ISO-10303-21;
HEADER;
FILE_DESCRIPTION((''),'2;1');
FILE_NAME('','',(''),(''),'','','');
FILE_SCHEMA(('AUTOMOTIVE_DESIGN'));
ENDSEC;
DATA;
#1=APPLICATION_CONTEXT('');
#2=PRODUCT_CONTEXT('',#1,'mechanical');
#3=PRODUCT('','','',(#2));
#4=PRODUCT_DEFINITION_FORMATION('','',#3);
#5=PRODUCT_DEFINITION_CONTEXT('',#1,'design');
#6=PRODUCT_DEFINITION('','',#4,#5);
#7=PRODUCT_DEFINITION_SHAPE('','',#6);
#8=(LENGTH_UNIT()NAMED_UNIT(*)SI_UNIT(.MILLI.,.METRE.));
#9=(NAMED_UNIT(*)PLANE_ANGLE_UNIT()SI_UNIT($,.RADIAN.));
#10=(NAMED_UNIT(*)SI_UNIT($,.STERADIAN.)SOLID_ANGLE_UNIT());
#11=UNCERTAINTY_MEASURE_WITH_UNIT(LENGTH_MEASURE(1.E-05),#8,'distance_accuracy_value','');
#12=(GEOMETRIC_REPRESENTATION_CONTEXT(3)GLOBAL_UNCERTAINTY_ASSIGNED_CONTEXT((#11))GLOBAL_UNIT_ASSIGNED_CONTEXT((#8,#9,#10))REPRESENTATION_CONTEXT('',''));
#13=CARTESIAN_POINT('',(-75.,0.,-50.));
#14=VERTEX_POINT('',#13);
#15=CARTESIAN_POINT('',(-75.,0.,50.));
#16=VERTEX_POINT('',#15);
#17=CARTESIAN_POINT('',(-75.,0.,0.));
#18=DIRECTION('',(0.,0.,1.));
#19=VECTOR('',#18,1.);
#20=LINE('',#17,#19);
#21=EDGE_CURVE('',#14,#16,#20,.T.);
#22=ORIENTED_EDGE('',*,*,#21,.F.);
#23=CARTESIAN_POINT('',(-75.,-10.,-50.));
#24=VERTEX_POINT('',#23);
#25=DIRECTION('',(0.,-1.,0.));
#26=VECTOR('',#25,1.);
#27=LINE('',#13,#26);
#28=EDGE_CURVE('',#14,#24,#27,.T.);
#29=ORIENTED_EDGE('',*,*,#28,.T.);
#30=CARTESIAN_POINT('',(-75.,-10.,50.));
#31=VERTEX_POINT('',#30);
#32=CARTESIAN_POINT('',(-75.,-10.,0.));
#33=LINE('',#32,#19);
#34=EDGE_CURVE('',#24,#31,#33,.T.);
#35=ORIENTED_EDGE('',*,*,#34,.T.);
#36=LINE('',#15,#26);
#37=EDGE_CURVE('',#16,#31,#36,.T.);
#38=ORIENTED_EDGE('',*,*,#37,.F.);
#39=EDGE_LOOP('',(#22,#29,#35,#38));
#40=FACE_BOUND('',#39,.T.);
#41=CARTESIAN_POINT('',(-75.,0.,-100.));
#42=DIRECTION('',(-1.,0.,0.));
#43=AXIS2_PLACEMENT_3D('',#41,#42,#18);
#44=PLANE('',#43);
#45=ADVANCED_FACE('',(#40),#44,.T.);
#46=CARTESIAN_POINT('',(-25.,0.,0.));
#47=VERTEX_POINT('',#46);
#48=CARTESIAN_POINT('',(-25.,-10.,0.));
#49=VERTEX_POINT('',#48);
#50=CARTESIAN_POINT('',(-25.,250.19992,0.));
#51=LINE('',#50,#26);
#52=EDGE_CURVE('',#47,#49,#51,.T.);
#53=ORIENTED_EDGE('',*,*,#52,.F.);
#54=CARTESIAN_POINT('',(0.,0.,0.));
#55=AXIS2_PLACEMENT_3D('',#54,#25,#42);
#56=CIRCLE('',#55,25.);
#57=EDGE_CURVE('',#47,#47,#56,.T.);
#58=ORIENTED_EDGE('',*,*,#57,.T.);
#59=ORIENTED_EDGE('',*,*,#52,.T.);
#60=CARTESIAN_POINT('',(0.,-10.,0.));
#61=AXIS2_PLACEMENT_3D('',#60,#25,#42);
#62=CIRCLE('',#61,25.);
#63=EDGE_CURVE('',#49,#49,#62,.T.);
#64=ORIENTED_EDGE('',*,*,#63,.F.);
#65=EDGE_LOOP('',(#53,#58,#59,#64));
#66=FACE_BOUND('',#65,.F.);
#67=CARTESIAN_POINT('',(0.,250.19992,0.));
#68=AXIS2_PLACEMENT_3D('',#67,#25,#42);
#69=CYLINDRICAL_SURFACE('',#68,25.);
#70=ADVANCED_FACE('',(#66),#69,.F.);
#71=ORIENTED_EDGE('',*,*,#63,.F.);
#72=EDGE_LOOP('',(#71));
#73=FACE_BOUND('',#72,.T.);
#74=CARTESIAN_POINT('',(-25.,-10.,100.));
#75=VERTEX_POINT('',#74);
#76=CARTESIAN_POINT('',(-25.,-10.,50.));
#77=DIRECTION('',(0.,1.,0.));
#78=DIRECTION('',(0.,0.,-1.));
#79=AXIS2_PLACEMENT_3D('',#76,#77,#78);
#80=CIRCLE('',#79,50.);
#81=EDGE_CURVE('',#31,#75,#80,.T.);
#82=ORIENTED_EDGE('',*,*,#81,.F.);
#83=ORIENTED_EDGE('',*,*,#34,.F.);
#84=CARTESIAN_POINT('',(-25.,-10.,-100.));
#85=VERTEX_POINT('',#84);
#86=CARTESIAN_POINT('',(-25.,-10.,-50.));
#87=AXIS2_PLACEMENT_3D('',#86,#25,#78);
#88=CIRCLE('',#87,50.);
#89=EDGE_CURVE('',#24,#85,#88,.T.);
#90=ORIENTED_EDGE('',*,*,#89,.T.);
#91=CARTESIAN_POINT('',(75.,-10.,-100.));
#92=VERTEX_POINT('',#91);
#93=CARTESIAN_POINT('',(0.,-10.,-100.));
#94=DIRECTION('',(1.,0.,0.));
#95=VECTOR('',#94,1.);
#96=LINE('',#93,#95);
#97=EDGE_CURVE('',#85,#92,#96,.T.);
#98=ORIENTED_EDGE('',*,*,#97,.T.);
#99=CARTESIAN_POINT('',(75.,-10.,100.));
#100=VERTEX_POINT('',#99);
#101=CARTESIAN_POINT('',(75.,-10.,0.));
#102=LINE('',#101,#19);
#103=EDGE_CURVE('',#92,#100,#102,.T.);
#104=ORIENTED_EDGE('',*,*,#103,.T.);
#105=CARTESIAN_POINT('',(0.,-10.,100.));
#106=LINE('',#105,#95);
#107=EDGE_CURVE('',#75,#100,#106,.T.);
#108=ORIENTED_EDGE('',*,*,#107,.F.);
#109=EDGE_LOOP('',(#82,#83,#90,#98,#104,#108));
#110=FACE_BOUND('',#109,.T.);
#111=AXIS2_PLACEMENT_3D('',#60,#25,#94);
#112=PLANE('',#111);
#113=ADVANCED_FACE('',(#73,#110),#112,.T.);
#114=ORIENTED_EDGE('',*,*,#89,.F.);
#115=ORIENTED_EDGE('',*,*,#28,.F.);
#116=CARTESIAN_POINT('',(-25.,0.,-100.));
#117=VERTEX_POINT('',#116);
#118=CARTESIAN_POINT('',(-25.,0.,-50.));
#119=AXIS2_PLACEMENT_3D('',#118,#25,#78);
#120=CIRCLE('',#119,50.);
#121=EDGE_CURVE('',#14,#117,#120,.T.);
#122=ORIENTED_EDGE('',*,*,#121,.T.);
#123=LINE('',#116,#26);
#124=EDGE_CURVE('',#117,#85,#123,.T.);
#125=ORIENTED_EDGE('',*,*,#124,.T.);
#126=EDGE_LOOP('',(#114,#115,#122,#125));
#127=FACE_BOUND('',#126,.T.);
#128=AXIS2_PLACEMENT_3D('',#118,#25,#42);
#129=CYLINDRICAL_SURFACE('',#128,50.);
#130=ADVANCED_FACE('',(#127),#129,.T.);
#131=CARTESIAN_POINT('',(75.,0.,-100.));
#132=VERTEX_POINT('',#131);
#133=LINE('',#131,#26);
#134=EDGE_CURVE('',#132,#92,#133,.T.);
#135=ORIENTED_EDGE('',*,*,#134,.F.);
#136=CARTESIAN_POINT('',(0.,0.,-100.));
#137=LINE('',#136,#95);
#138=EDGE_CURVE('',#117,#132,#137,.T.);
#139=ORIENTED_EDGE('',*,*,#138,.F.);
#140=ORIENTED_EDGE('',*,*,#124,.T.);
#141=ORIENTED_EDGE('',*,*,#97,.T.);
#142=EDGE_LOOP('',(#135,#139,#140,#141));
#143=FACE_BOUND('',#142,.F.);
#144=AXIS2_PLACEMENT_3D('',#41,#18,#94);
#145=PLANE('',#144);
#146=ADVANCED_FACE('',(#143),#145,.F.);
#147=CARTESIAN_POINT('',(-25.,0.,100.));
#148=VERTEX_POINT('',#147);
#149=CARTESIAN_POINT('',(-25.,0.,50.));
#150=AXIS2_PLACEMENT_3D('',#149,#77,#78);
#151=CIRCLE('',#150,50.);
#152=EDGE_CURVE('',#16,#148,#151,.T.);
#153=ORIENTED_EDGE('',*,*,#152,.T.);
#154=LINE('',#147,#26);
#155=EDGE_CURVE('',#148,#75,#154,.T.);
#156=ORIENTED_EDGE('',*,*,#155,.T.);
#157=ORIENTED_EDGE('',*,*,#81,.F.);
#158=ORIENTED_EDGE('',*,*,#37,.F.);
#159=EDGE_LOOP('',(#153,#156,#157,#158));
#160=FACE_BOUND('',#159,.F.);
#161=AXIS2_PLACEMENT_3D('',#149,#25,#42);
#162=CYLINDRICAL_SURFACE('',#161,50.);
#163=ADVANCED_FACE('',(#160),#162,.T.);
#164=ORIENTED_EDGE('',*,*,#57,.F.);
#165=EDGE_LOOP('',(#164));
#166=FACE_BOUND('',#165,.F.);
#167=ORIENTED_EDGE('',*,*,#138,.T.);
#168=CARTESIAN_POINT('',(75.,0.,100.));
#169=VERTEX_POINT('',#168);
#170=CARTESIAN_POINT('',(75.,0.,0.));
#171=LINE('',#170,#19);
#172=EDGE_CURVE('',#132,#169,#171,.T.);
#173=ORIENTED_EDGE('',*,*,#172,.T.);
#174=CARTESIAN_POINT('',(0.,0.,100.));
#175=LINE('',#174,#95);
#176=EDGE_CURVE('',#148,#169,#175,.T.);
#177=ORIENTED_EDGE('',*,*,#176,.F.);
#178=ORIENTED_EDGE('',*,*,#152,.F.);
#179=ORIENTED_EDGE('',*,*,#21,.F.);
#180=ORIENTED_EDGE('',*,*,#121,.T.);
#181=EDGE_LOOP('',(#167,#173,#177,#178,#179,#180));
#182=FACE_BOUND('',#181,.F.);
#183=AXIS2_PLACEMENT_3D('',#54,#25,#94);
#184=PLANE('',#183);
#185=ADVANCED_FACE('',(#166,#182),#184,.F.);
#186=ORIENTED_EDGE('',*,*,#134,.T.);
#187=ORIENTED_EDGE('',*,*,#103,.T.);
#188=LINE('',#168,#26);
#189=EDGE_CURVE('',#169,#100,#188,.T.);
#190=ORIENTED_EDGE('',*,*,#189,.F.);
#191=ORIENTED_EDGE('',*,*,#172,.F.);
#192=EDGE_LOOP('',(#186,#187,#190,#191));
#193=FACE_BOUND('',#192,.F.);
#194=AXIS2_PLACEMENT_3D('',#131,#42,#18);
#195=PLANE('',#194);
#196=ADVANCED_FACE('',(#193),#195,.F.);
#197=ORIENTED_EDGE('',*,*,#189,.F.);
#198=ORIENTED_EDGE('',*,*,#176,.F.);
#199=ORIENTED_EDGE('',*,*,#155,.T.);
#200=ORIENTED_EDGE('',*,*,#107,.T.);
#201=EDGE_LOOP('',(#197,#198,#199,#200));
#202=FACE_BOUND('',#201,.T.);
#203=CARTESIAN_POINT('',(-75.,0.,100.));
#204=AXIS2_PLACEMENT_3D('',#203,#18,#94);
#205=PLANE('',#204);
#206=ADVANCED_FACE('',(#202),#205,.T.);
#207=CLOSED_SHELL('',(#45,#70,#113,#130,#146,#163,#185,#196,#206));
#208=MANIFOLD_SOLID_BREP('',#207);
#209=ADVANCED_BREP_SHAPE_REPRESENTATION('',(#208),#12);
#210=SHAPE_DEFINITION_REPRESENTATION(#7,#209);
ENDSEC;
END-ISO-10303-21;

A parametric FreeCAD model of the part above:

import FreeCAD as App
import Part
import Sketcher


def edges_at(feature, points):
    """Names of the edges that pass closest to the given points."""
    edges = feature.Shape.Edges
    near = lambda p: min(range(len(edges)), key=lambda i: edges[i].distToShape(Part.Vertex(*p))[0])
    return sorted({f"Edge{near(p) + 1}" for p in points})

doc = App.newDocument("Part")
body = doc.addObject("PartDesign::Body", "Body")

# Sketch on XZ plane
sketch1 = body.newObject("Sketcher::SketchObject", "Sketch")
sketch1.AttachmentSupport = (doc.getObject("XZ_Plane"), [""])
sketch1.MapMode = "FlatFace"
sketch1.addGeometry([
    Part.LineSegment(App.Vector(-75, 100, 0), App.Vector(-75, -100, 0)),
    Part.LineSegment(App.Vector(-75, -100, 0), App.Vector(75, -100, 0)),
    Part.LineSegment(App.Vector(75, -100, 0), App.Vector(75, 100, 0)),
    Part.LineSegment(App.Vector(75, 100, 0), App.Vector(-75, 100, 0)),
], False)
sketch1.addConstraint([
    Sketcher.Constraint("Coincident", 0, 2, 1, 1),
    Sketcher.Constraint("Coincident", 1, 2, 2, 1),
    Sketcher.Constraint("Coincident", 2, 2, 3, 1),
    Sketcher.Constraint("Coincident", 3, 2, 0, 1),
    Sketcher.Constraint("Vertical", 0),
    Sketcher.Constraint("Horizontal", 1),
    Sketcher.Constraint("Vertical", 2),
    Sketcher.Constraint("Horizontal", 3),
    Sketcher.Constraint("Symmetric", 0, 2, 2, 2, -1, 1),
    Sketcher.Constraint("DistanceX", 1, 1, 1, 2, 150.0),
    Sketcher.Constraint("DistanceY", 0, 2, 0, 1, 200.0),
])
pad1 = body.newObject("PartDesign::Pad", "Pad")
pad1.Profile = sketch1
pad1.Length = 10
doc.recompute()

fillet = body.newObject("PartDesign::Fillet", "Fillet")
fillet.Base = (pad1, edges_at(pad1, [(-75, -5, 100), (-75, -5, -100)]))
fillet.Radius = 50

# Sketch on XZ plane
sketch2 = body.newObject("Sketcher::SketchObject", "Sketch001")
sketch2.AttachmentSupport = (doc.getObject("XZ_Plane"), [""])
sketch2.MapMode = "FlatFace"
sketch2.addGeometry(Part.Circle(App.Vector(0, 0, 0), App.Vector(0, 0, 1), 25), False)
sketch2.addConstraint([
    Sketcher.Constraint("Coincident", 0, 3, -1, 1),
    Sketcher.Constraint("Diameter", 0, 50.0),
])
doc.recompute()
hole = body.newObject("PartDesign::Hole", "Hole")
hole.Profile = sketch2
hole.ThreadType = "None"
hole.Diameter = 50
hole.DepthType = "ThroughAll"
hole.Reversed = True

doc.recompute()
